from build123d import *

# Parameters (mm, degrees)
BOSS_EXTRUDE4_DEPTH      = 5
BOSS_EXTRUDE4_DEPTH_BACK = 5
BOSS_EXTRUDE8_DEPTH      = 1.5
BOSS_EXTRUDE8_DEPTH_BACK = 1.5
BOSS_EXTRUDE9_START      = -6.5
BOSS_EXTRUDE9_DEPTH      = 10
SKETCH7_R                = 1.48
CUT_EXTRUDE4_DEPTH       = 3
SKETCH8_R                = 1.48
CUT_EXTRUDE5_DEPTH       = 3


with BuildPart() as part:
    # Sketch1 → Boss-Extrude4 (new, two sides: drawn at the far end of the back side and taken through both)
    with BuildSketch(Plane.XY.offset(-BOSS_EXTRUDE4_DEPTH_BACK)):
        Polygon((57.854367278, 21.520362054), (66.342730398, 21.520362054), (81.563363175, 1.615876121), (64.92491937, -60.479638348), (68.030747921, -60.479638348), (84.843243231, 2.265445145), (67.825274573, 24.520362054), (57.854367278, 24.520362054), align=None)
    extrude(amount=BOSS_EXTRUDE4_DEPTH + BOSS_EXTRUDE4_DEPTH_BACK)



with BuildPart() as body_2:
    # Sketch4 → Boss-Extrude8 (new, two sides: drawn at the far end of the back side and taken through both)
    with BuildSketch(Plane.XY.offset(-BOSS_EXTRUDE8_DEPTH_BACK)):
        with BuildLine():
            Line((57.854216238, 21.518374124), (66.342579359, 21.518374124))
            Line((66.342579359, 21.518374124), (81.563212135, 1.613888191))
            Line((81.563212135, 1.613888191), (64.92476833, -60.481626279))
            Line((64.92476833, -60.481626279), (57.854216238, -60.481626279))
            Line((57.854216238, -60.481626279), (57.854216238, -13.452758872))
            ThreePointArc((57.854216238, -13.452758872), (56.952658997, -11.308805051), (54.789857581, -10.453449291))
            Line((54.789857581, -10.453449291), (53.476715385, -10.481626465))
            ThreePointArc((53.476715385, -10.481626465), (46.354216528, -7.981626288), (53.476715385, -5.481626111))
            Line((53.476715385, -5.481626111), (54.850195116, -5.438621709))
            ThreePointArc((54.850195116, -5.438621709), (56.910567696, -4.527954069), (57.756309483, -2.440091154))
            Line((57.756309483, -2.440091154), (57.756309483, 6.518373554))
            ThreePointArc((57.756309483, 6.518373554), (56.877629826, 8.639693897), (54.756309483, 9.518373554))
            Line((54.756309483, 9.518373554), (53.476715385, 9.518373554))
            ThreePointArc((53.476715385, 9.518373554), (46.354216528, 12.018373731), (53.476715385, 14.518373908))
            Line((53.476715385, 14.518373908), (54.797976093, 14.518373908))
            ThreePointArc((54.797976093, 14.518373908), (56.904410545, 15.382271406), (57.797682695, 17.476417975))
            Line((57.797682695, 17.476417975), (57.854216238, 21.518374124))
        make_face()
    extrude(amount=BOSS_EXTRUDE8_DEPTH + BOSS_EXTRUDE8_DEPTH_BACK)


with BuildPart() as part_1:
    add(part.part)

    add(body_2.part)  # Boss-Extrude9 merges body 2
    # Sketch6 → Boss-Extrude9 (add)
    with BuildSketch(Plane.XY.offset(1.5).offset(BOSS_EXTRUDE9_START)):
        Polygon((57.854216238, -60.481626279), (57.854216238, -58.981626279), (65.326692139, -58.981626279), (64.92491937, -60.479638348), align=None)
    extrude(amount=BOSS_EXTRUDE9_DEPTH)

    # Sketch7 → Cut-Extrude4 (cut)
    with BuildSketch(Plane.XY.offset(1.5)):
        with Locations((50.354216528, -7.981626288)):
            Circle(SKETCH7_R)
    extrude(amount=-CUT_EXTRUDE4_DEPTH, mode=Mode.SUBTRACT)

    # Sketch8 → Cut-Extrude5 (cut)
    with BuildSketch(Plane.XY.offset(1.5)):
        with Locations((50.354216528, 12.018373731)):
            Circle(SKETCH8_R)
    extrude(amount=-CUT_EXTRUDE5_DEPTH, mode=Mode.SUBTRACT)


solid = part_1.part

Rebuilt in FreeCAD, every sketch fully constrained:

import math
import FreeCAD as App
import Part
import Sketcher

V = App.Vector
Q = App.Units.Quantity

doc = App.newDocument("Part")
body = doc.addObject("PartDesign::Body", "Body")

sketch1 = body.newObject("Sketcher::SketchObject", "Sketch")
sketch1.AttachmentSupport = (doc.getObject("XY_Plane"), [""])
sketch1.MapMode = "FlatFace"
sketch1.addGeometry([
    Part.LineSegment(V(57.9, 21.5, 0), V(66.3, 21.5, 0)),
    Part.LineSegment(V(66.3, 21.5, 0), V(81.6, 1.6, 0)),
    Part.LineSegment(V(81.6, 1.6, 0), V(64.9, -60.5, 0)),
    Part.LineSegment(V(64.9, -60.5, 0), V(68, -60.5, 0)),
    Part.LineSegment(V(68, -60.5, 0), V(84.8, 2.3, 0)),
    Part.LineSegment(V(84.8, 2.3, 0), V(67.8, 24.5, 0)),
    Part.LineSegment(V(67.8, 24.5, 0), V(57.9, 24.5, 0)),
    Part.LineSegment(V(57.9, 24.5, 0), V(57.9, 21.5, 0)),
], False)
sketch1.addConstraint([
    Sketcher.Constraint("Coincident", 0, 2, 1, 1),
    Sketcher.Constraint("Coincident", 1, 2, 2, 1),
    Sketcher.Constraint("Coincident", 2, 2, 3, 1),
    Sketcher.Constraint("Coincident", 3, 2, 4, 1),
    Sketcher.Constraint("Coincident", 4, 2, 5, 1),
    Sketcher.Constraint("Coincident", 5, 2, 6, 1),
    Sketcher.Constraint("Coincident", 6, 2, 7, 1),
    Sketcher.Constraint("Coincident", 7, 2, 0, 1),
    Sketcher.Constraint("Horizontal", 0),
    Sketcher.Constraint("Horizontal", 3),
    Sketcher.Constraint("Horizontal", 6),
    Sketcher.Constraint("Vertical", 7),
    Sketcher.Constraint("Parallel", 2, 4),
    Sketcher.Constraint("Parallel", 1, 5),
    Sketcher.Constraint("DistanceY", 7, 2, 7, 1, Q("3 mm")),
    Sketcher.Constraint("Angle", 2, Q("-105.000001 deg")),
    Sketcher.Constraint("DistanceY", 2, 2, 0, 2, Q("82 mm")),
    Sketcher.Constraint("DistanceX", 3, 1, 3, 2, Q("3.105829 mm")),
    Sketcher.Constraint("Distance", 1, Q("25.057059 mm")),
    Sketcher.Constraint("Distance", 4, Q("64.958491 mm")),
    Sketcher.Constraint("DistanceX", 0, 1, 0, 2, Q("8.488363 mm")),
    Sketcher.Constraint("DistanceX", 6, 2, 6, 1, Q("9.970907 mm")),
    Sketcher.Constraint("DistanceX", -1, 1, 0, 2, Q("66.34273 mm")),
    Sketcher.Constraint("DistanceY", 2, 2, -1, 1, Q("60.479638 mm")),
])
pad1 = body.newObject("PartDesign::Pad", "Pad")
pad1.Profile = sketch1
pad1.Type = "TwoLengths"
pad1.Length = 5
pad1.Length2 = 5
body2 = doc.addObject("PartDesign::Body", "Body001")

sketch2 = body2.newObject("Sketcher::SketchObject", "Sketch001")
sketch2.AttachmentSupport = (doc.getObject("XY_Plane001"), [""])
sketch2.MapMode = "FlatFace"
sketch2.addGeometry([
    Part.LineSegment(V(66.3, 21.5, 0), V(57.9, 21.5, 0)),
    Part.LineSegment(V(57.9, 21.5, 0), V(57.8, 17.5, 0)),
    Part.ArcOfCircle(Part.Circle(V(54.8, 17.5, 0), V(0, 0, 1), 3), math.radians(-90), math.radians(-1)),
    Part.LineSegment(V(54.8, 14.5, 0), V(53.5, 14.5, 0)),
    Part.ArcOfCircle(Part.Circle(V(50.4, 12, 0), V(0, 0, 1), 4), math.radians(39), math.radians(321)),
    Part.LineSegment(V(53.5, 9.5, 0), V(54.8, 9.5, 0)),
    Part.ArcOfCircle(Part.Circle(V(54.8, 6.5, 0), V(0, 0, 1), 3), math.radians(0), math.radians(90)),
    Part.LineSegment(V(57.8, 6.5, 0), V(57.8, -2.4, 0)),
    Part.ArcOfCircle(Part.Circle(V(54.8, -2.4, 0), V(0, 0, 1), 3), math.radians(-88), math.radians(0)),
    Part.LineSegment(V(54.9, -5.4, 0), V(53.5, -5.5, 0)),
    Part.ArcOfCircle(Part.Circle(V(50.4, -8, 0), V(0, 0, 1), 4), math.radians(39), math.radians(321)),
    Part.LineSegment(V(53.5, -10.5, 0), V(54.8, -10.5, 0)),
    Part.ArcOfCircle(Part.Circle(V(54.9, -13.5, 0), V(0, 0, 1), 3), math.radians(0), math.radians(91)),
    Part.LineSegment(V(57.9, -13.5, 0), V(57.9, -60.5, 0)),
    Part.LineSegment(V(57.9, -60.5, 0), V(64.9, -60.5, 0)),
    Part.LineSegment(V(64.9, -60.5, 0), V(81.6, 1.6, 0)),
    Part.LineSegment(V(81.6, 1.6, 0), V(66.3, 21.5, 0)),
], False)
sketch2.addConstraint([
    Sketcher.Constraint("Coincident", 0, 2, 1, 1),
    Sketcher.Constraint("Tangent", 1, 2, 2, 2),
    Sketcher.Constraint("Tangent", 2, 1, 3, 1),
    Sketcher.Constraint("Coincident", 3, 2, 4, 1),
    Sketcher.Constraint("Coincident", 4, 2, 5, 1),
    Sketcher.Constraint("Tangent", 5, 2, 6, 2),
    Sketcher.Constraint("Tangent", 6, 1, 7, 1),
    Sketcher.Constraint("Tangent", 7, 2, 8, 2),
    Sketcher.Constraint("Tangent", 8, 1, 9, 1),
    Sketcher.Constraint("Coincident", 9, 2, 10, 1),
    Sketcher.Constraint("Coincident", 10, 2, 11, 1),
    Sketcher.Constraint("Tangent", 11, 2, 12, 2),
    Sketcher.Constraint("Tangent", 12, 1, 13, 1),
    Sketcher.Constraint("Coincident", 13, 2, 14, 1),
    Sketcher.Constraint("Coincident", 14, 2, 15, 1),
    Sketcher.Constraint("Coincident", 15, 2, 16, 1),
    Sketcher.Constraint("Coincident", 16, 2, 0, 1),
    Sketcher.Constraint("Horizontal", 0),
    Sketcher.Constraint("Horizontal", 3),
    Sketcher.Constraint("Horizontal", 5),
    Sketcher.Constraint("Vertical", 7),
    Sketcher.Constraint("Vertical", 13),
    Sketcher.Constraint("Horizontal", 14),
    Sketcher.Constraint("Equal", 2, 6),
    Sketcher.Constraint("Equal", 6, 8),
    Sketcher.Constraint("Equal", 4, 10),
    Sketcher.Constraint("Equal", 8, 12),
    Sketcher.Constraint("Vertical", 4, 3, 10, 3),
    Sketcher.Constraint("Vertical", 3, 2, 4, 2),
    Sketcher.Constraint("Vertical", 4, 2, 9, 2),
    Sketcher.Constraint("Vertical", 9, 2, 10, 2),
    Sketcher.Constraint("Vertical", 0, 2, 12, 1),
    Sketcher.Constraint("Radius", 2, Q("3 mm")),
    Sketcher.Constraint("Radius", 4, Q("4 mm")),
    Sketcher.Constraint("Angle", 15, Q("74.999999 deg")),
    Sketcher.Constraint("DistanceY", 6, 3, 2, 3, Q("11 mm")),
    Sketcher.Constraint("DistanceY", 10, 3, 4, 3, Q("20 mm")),
    Sketcher.Constraint("DistanceY", 2, 3, 0, 2, Q("4 mm")),
    Sketcher.Constraint("DistanceY", 13, 2, 10, 2, Q("50 mm")),
    Sketcher.Constraint("DistanceX", 10, 3, 12, 3, Q("4.5 mm")),
    Sketcher.Constraint("DistanceX", 3, 2, 3, 1, Q("1.321261 mm")),
    Sketcher.Constraint("Distance", 16, Q("25.057059 mm")),
    Sketcher.Constraint("DistanceX", 0, 2, 0, 1, Q("8.488363 mm")),
    Sketcher.Constraint("DistanceX", 5, 1, 5, 2, Q("1.279594 mm")),
    Sketcher.Constraint("DistanceX", 14, 1, 14, 2, Q("7.070552 mm")),
    Sketcher.Constraint("DistanceY", 7, 2, 7, 1, Q("8.958465 mm")),
    Sketcher.Constraint("DistanceY", 13, 2, 13, 1, Q("47.028867 mm")),
    Sketcher.Constraint("DistanceX", -1, 1, 6, 3, Q("54.756309 mm")),
    Sketcher.Constraint("DistanceY", 8, 3, -1, 1, Q("2.440091 mm")),
])
pad2 = body2.newObject("PartDesign::Pad", "Pad001")
pad2.Profile = sketch2
pad2.Type = "TwoLengths"
pad2.Length = 1.5
pad2.Length2 = 1.5
doc.recompute()

boolean = body.newObject("PartDesign::Boolean", "Boolean")
boolean.Type = "Fuse"
boolean.addObjects([body2])

sketch3 = body.newObject("Sketcher::SketchObject", "Sketch002")
sketch3.AttachmentSupport = (doc.getObject("XY_Plane"), [""])
sketch3.MapMode = "FlatFace"
sketch3.AttachmentOffset = App.Placement(V(0, 0, -5), App.Rotation())
sketch3.addGeometry([
    Part.LineSegment(V(57.9, -59, 0), V(57.9, -60.5, 0)),
    Part.LineSegment(V(57.9, -60.5, 0), V(64.9, -60.5, 0)),
    Part.LineSegment(V(64.9, -60.5, 0), V(65.3, -59, 0)),
    Part.LineSegment(V(65.3, -59, 0), V(57.9, -59, 0)),
], False)
sketch3.addConstraint([
    Sketcher.Constraint("Coincident", 0, 2, 1, 1),
    Sketcher.Constraint("Coincident", 1, 2, 2, 1),
    Sketcher.Constraint("Coincident", 2, 2, 3, 1),
    Sketcher.Constraint("Coincident", 3, 2, 0, 1),
    Sketcher.Constraint("Vertical", 0),
    Sketcher.Constraint("Horizontal", 3),
    Sketcher.Constraint("DistanceY", 0, 2, 0, 1, Q("1.5 mm")),
    Sketcher.Constraint("DistanceX", 3, 2, 3, 1, Q("7.472476 mm")),
    Sketcher.Constraint("DistanceX", -1, 1, 1, 2, Q("64.924919 mm")),
    Sketcher.Constraint("DistanceY", 1, 2, -1, 1, Q("60.479638 mm")),
    Sketcher.Constraint("Distance", 1, Q("7.070703 mm")),
    Sketcher.Constraint("Distance", 2, Q("1.550955 mm")),
])
pad3 = body.newObject("PartDesign::Pad", "Pad002")
pad3.Profile = sketch3
pad3.Length = 10

sketch4 = body.newObject("Sketcher::SketchObject", "Sketch003")
sketch4.AttachmentSupport = (doc.getObject("XY_Plane"), [""])
sketch4.MapMode = "FlatFace"
sketch4.AttachmentOffset = App.Placement(V(0, 0, 1.5), App.Rotation())
sketch4.addGeometry(Part.Circle(V(50.4, -8, 0), V(0, 0, 1), 1.5), False)
sketch4.addConstraint([
    Sketcher.Constraint("Diameter", 0, Q("2.96 mm")),
    Sketcher.Constraint("DistanceX", -1, 1, 0, 3, Q("50.354217 mm")),
    Sketcher.Constraint("DistanceY", 0, 3, -1, 1, Q("7.981626 mm")),
])
pocket1 = body.newObject("PartDesign::Pocket", "Pocket")
pocket1.Profile = sketch4
pocket1.Length = 3

sketch5 = body.newObject("Sketcher::SketchObject", "Sketch004")
sketch5.AttachmentSupport = (doc.getObject("XY_Plane"), [""])
sketch5.MapMode = "FlatFace"
sketch5.AttachmentOffset = App.Placement(V(0, 0, 1.5), App.Rotation())
sketch5.addGeometry(Part.Circle(V(50.4, 12, 0), V(0, 0, 1), 1.5), False)
sketch5.addConstraint([
    Sketcher.Constraint("Diameter", 0, Q("2.96 mm")),
    Sketcher.Constraint("DistanceX", -1, 1, 0, 3, Q("50.354217 mm")),
    Sketcher.Constraint("DistanceY", -1, 1, 0, 3, Q("12.018374 mm")),
])
pocket2 = body.newObject("PartDesign::Pocket", "Pocket001")
pocket2.Profile = sketch5
pocket2.Length = 3

doc.recompute()
